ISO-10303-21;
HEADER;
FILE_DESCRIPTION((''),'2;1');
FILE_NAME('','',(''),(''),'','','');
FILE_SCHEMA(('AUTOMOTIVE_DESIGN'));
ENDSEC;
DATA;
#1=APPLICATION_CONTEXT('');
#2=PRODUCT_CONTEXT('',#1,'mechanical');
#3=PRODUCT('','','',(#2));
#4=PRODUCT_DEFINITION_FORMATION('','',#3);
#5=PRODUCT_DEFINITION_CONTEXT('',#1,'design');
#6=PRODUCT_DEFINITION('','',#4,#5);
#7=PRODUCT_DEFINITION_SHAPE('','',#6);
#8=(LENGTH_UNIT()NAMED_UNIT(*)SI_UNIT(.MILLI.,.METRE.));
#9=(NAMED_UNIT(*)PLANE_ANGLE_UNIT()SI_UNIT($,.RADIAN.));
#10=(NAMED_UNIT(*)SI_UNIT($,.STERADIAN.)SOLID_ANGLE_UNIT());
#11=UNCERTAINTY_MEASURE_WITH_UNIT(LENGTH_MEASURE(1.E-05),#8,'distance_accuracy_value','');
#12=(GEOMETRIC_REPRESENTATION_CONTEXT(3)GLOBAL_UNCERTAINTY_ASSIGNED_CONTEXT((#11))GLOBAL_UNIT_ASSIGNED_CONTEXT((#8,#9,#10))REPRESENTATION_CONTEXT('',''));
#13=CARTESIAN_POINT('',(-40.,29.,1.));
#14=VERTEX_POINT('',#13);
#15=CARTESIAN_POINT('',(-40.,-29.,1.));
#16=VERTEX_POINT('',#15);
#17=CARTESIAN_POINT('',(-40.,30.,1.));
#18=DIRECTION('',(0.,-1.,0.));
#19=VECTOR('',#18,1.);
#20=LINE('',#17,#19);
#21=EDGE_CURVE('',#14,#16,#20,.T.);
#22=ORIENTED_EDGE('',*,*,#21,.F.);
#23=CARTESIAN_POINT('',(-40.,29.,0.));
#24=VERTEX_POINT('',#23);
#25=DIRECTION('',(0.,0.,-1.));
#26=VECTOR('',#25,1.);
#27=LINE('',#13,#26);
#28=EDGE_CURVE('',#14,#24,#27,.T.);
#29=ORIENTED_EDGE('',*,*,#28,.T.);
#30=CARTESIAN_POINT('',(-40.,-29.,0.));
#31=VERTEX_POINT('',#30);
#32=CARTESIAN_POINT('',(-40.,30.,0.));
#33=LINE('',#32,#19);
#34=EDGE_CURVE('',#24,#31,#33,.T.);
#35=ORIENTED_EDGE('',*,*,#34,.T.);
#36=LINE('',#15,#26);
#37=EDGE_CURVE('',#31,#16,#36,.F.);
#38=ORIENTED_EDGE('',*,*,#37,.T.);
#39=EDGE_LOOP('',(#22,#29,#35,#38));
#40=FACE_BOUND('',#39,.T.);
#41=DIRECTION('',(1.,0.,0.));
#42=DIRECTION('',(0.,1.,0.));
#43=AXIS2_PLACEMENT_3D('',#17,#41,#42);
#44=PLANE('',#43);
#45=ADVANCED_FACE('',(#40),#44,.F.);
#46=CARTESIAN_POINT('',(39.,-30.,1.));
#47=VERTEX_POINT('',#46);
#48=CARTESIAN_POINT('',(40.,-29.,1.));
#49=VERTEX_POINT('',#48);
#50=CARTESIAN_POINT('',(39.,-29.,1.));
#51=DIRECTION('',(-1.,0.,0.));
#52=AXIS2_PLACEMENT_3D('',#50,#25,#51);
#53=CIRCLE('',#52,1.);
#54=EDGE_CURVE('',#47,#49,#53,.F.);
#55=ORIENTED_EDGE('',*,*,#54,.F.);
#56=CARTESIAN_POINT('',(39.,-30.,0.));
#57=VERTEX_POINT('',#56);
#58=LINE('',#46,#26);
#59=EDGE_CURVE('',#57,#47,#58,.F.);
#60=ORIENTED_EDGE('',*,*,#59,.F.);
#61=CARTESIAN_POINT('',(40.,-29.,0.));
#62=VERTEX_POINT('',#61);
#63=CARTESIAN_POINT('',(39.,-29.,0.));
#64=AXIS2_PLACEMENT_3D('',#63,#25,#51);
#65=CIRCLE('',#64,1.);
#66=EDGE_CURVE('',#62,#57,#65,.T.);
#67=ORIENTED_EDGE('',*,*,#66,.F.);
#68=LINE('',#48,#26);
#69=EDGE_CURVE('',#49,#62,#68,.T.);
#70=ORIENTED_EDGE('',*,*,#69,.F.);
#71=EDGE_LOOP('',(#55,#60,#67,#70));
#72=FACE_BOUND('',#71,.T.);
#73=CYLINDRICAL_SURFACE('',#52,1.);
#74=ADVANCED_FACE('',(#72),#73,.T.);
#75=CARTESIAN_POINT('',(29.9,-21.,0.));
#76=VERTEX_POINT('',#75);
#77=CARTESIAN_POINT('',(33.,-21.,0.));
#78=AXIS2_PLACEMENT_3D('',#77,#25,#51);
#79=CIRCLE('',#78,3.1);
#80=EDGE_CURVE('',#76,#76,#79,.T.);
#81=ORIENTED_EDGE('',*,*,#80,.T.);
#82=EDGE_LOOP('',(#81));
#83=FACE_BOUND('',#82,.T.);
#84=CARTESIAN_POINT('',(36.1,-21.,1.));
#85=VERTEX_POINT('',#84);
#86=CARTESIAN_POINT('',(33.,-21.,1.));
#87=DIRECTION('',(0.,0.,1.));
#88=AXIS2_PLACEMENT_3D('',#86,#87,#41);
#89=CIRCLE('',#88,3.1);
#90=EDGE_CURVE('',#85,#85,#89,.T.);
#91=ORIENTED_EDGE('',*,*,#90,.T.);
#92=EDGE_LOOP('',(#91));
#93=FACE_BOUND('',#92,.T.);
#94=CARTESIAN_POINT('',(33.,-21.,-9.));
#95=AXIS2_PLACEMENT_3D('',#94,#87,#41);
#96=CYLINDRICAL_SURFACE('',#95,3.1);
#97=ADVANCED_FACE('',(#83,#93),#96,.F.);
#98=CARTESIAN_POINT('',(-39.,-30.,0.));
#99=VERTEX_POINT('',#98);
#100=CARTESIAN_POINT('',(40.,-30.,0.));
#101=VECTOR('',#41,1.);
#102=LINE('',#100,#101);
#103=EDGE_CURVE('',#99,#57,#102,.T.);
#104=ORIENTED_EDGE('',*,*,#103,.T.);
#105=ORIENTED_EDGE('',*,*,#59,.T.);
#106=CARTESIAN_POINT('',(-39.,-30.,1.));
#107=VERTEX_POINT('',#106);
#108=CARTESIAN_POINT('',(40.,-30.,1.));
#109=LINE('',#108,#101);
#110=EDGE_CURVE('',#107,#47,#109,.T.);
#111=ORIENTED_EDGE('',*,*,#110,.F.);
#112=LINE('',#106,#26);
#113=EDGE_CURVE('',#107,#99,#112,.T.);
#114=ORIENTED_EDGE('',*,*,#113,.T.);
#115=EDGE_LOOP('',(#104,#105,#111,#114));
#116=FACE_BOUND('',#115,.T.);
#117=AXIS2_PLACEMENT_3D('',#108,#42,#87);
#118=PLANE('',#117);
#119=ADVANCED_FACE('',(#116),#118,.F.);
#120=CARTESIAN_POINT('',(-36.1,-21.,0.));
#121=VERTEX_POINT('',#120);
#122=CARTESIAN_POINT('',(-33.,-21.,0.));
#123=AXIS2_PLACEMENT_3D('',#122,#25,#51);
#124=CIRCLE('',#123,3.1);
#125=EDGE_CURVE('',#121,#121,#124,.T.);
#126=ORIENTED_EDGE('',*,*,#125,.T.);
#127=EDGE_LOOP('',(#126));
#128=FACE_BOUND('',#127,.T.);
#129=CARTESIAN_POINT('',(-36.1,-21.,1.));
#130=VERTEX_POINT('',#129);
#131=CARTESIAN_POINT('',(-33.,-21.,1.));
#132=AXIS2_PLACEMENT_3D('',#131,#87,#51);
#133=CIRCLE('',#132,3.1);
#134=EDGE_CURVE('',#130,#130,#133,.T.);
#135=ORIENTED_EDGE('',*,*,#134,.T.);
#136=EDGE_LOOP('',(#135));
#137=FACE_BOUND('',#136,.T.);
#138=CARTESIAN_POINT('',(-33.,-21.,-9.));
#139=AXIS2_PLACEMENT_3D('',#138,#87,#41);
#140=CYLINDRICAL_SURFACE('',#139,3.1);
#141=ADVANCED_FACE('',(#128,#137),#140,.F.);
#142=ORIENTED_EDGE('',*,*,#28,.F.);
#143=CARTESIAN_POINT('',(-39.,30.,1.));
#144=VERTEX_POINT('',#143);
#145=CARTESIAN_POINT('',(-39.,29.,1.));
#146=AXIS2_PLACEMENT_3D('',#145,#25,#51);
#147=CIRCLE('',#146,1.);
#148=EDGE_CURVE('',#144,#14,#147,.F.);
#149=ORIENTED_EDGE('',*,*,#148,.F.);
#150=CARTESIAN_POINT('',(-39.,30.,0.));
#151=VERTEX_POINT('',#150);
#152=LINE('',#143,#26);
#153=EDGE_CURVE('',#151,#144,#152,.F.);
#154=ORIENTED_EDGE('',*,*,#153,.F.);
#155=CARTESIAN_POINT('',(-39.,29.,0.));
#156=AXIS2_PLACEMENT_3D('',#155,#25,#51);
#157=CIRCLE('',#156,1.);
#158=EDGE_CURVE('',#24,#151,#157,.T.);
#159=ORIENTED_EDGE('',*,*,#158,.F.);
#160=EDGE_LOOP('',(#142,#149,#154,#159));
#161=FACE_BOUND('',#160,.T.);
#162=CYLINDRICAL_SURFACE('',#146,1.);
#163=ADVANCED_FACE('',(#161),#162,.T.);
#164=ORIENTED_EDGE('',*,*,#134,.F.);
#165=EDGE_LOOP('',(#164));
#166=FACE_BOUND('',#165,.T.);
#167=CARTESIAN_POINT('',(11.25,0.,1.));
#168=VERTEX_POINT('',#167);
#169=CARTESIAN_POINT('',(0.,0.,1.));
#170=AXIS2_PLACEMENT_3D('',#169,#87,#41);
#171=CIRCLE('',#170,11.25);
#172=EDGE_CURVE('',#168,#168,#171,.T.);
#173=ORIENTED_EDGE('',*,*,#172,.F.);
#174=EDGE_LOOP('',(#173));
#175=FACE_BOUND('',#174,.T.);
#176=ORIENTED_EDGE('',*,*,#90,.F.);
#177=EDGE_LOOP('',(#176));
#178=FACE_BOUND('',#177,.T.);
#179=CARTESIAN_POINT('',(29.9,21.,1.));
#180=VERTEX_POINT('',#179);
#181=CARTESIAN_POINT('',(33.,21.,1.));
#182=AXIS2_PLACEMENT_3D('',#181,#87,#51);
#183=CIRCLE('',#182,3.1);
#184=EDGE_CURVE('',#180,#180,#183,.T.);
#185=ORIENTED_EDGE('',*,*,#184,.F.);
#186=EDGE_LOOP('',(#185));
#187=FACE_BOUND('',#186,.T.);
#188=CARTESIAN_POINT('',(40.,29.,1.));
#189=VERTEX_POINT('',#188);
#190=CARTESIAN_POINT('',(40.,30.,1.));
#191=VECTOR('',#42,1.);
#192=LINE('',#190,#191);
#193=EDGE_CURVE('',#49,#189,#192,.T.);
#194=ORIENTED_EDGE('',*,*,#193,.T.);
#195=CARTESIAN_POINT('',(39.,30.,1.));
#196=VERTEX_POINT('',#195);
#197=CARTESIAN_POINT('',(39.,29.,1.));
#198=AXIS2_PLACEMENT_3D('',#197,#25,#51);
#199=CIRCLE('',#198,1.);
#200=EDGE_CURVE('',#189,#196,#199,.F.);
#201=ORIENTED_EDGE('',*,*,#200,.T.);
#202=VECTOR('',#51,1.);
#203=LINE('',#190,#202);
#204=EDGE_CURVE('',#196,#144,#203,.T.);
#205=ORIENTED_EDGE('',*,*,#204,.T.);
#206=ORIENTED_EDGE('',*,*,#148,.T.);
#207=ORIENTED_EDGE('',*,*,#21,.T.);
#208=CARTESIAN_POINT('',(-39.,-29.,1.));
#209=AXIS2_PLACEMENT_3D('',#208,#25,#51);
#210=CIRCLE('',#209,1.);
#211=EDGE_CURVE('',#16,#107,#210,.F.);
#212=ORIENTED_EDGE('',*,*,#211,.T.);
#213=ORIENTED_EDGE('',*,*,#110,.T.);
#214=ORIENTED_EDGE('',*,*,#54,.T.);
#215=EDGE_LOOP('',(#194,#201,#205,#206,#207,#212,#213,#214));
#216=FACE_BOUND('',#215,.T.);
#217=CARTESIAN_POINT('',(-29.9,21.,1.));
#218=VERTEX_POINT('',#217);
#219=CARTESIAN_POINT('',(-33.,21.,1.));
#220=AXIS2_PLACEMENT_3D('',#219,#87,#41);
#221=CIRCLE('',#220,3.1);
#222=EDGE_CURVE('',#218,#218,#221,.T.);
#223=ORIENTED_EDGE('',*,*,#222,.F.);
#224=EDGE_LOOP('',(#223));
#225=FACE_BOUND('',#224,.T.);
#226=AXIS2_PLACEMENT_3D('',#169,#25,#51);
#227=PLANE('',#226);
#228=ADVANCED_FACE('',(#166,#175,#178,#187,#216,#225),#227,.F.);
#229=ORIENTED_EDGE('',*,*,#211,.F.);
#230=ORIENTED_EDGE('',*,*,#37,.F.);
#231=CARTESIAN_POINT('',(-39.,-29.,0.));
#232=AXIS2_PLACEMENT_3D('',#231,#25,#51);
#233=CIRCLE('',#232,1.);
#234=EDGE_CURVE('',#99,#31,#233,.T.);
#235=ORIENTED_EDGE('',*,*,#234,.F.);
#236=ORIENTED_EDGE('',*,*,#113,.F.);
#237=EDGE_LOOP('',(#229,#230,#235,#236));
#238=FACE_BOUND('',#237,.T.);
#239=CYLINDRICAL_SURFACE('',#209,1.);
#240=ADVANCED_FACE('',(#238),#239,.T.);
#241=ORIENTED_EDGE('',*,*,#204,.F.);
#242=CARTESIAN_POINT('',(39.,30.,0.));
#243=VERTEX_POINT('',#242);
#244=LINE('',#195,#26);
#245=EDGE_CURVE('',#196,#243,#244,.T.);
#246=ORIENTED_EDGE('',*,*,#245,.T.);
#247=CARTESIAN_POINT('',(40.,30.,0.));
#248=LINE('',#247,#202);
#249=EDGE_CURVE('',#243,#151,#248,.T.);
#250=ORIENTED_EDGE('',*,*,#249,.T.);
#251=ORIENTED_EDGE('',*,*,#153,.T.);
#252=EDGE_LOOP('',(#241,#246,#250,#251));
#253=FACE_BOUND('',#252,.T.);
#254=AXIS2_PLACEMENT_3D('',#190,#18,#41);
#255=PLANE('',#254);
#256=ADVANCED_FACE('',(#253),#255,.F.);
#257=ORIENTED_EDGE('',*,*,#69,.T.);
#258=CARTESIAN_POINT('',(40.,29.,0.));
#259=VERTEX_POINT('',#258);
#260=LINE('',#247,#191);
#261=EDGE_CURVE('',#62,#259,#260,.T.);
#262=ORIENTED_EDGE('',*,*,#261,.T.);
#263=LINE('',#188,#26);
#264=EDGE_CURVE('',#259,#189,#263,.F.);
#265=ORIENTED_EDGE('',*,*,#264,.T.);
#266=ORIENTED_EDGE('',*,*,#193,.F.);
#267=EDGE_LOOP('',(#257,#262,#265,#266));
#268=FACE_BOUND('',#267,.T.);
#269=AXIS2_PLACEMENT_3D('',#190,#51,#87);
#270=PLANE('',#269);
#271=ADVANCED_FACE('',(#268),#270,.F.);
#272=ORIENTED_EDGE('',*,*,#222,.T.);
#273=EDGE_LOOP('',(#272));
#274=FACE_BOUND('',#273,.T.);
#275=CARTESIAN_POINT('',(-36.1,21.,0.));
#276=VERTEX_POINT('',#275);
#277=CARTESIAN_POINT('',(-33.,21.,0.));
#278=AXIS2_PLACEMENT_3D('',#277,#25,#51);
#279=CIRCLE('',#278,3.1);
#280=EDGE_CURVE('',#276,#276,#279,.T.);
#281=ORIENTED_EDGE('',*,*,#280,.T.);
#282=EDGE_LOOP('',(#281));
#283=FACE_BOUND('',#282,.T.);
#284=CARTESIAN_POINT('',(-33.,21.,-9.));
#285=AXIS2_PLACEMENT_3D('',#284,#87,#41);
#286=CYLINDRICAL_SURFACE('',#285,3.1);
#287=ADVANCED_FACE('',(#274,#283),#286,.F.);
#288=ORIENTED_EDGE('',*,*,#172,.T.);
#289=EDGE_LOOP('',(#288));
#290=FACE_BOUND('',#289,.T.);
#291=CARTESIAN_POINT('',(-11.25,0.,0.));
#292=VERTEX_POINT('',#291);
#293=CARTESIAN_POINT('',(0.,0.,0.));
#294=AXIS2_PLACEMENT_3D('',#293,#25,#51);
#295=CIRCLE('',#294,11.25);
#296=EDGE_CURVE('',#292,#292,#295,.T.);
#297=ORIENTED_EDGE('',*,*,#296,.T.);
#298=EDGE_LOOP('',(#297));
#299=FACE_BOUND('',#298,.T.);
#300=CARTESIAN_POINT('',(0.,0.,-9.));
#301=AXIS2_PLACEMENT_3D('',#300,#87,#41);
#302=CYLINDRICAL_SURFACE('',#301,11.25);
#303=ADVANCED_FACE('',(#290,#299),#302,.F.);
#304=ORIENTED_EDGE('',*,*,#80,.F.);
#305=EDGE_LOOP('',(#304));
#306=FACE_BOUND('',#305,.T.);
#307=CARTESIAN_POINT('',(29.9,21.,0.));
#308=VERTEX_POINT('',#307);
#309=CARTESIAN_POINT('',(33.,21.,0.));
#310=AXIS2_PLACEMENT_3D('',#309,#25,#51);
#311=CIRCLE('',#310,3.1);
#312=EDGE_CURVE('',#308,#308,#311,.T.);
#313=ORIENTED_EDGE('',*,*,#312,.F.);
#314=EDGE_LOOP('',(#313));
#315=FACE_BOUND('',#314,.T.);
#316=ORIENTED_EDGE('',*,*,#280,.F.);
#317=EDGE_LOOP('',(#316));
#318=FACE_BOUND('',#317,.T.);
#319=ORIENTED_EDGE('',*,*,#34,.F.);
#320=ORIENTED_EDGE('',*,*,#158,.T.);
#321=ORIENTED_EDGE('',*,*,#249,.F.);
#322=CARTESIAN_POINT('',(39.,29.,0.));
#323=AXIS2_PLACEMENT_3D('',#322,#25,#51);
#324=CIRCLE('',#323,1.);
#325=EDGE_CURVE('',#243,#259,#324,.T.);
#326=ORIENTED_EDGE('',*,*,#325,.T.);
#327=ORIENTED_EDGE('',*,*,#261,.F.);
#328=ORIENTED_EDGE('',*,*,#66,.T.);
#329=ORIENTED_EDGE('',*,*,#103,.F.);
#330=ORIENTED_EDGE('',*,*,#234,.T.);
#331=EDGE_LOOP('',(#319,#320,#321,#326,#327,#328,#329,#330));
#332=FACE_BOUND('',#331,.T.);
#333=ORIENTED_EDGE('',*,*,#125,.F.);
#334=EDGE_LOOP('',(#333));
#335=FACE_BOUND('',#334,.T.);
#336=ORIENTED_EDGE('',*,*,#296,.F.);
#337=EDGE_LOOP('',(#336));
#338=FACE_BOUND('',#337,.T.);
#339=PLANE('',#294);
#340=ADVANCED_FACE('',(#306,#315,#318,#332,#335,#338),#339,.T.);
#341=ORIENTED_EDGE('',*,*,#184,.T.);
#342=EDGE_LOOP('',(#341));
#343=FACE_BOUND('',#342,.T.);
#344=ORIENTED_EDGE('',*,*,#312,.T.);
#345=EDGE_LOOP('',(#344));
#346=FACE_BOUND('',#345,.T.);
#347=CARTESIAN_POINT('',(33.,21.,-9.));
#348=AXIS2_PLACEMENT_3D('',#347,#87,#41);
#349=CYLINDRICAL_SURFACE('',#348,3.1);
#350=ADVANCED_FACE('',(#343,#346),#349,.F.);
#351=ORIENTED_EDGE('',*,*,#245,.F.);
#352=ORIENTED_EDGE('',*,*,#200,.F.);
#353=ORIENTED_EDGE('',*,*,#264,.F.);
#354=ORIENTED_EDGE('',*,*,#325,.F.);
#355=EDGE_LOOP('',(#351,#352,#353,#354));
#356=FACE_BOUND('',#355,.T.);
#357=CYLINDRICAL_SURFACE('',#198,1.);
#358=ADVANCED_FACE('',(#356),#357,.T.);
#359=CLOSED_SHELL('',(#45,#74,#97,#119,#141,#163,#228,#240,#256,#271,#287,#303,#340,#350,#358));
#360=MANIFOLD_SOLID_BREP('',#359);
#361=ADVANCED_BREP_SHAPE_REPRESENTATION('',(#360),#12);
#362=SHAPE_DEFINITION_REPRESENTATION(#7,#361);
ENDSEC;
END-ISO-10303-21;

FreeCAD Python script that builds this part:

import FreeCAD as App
import Part
import Sketcher

V = App.Vector
Q = App.Units.Quantity


def edges_at(feature, points):
    """Names of the edges that pass closest to the given points."""
    edges = feature.Shape.Edges
    near = lambda p: min(range(len(edges)), key=lambda i: edges[i].distToShape(Part.Vertex(*p))[0])
    return sorted({f"Edge{near(p) + 1}" for p in points})


def add_polygon(sketch, points):
    """Adds a closed chain of lines whose ends are joined by coincident constraints."""
    first, n = sketch.GeometryCount, len(points)
    for a, b in zip(points, points[1:] + points[:1]):
        sketch.addGeometry(Part.LineSegment(App.Vector(*a, 0), App.Vector(*b, 0)), False)
    for i in range(n):
        sketch.addConstraint(Sketcher.Constraint("Coincident", first + i, 2, first + (i + 1) % n, 1))

doc = App.newDocument("Part")
body = doc.addObject("PartDesign::Body", "Body")

# Sketch on XY plane
sketch1 = doc.addObject("Sketcher::SketchObject", "Sketch")
body.addObject(sketch1)
sketch1.AttachmentSupport = (doc.XY_Plane, [""])
sketch1.MapMode = "FlatFace"
add_polygon(sketch1, [(-40, 30), (-40, -30), (40, -30), (40, 30)])  # lines 0-3
sketch1.addConstraint([
    Sketcher.Constraint("Vertical", 0),
    Sketcher.Constraint("Horizontal", 1),
    Sketcher.Constraint("Vertical", 2),
    Sketcher.Constraint("Horizontal", 3),
    Sketcher.Constraint("Symmetric", 0, 2, 2, 2, -1, 1),
    Sketcher.Constraint("DistanceX", 1, 1, 1, 2, Q("80 mm")),
    Sketcher.Constraint("DistanceY", 0, 2, 0, 1, Q("60 mm")),
])
pad1 = doc.addObject("PartDesign::Pad", "Pad")
body.addObject(pad1)
pad1.Profile = sketch1
pad1.Length = 1

# Sketch on XY plane
sketch2 = doc.addObject("Sketcher::SketchObject", "Sketch001")
body.addObject(sketch2)
sketch2.AttachmentSupport = (doc.XY_Plane, [""])
sketch2.MapMode = "FlatFace"
sketch2.AttachmentOffset = App.Placement(V(0, 0, 1), App.Rotation())
sketch2.addGeometry([
    Part.Circle(V(-33, 21, 0), V(0, 0, 1), 3.1),  # 0
    Part.Circle(V(33, 21, 0), V(0, 0, 1), 3.1),  # 1
    Part.Circle(V(33, -21, 0), V(0, 0, 1), 3.1),  # 2
    Part.Circle(V(-33, -21, 0), V(0, 0, 1), 3.1),  # 3
    Part.Circle(V(0, 0, 0), V(0, 0, 1), 11.25),  # 4
], False)
sketch2.addConstraint([
    Sketcher.Constraint("Coincident", 4, 3, -1, 1),
    Sketcher.Constraint("Equal", 0, 1),
    Sketcher.Constraint("Equal", 1, 2),
    Sketcher.Constraint("Equal", 2, 3),
    Sketcher.Constraint("Symmetric", 0, 3, 2, 3, -1, 1),
    Sketcher.Constraint("Symmetric", 1, 3, 3, 3, -1, 1),
    Sketcher.Constraint("Symmetric", 0, 3, 1, 3, -2),
    Sketcher.Constraint("Diameter", 0, Q("6.2 mm")),
    Sketcher.Constraint("Diameter", 4, Q("22.5 mm")),
    Sketcher.Constraint("DistanceX", 0, 3, -1, 1, Q("33 mm")),
    Sketcher.Constraint("DistanceY", -1, 1, 0, 3, Q("21 mm")),
])
pocket1 = doc.addObject("PartDesign::Pocket", "Pocket")
body.addObject(pocket1)
pocket1.Profile = sketch2
pocket1.Length = 10
doc.recompute()

fillet = doc.addObject("PartDesign::Fillet", "Fillet")
body.addObject(fillet)
fillet.Base = (pocket1, edges_at(pocket1, [
    (-40, 30, 0.5),
    (40, 30, 0.5),
    (40, -30, 0.5),
    (-40, -30, 0.5),
]))
fillet.Radius = 1

doc.recompute()
